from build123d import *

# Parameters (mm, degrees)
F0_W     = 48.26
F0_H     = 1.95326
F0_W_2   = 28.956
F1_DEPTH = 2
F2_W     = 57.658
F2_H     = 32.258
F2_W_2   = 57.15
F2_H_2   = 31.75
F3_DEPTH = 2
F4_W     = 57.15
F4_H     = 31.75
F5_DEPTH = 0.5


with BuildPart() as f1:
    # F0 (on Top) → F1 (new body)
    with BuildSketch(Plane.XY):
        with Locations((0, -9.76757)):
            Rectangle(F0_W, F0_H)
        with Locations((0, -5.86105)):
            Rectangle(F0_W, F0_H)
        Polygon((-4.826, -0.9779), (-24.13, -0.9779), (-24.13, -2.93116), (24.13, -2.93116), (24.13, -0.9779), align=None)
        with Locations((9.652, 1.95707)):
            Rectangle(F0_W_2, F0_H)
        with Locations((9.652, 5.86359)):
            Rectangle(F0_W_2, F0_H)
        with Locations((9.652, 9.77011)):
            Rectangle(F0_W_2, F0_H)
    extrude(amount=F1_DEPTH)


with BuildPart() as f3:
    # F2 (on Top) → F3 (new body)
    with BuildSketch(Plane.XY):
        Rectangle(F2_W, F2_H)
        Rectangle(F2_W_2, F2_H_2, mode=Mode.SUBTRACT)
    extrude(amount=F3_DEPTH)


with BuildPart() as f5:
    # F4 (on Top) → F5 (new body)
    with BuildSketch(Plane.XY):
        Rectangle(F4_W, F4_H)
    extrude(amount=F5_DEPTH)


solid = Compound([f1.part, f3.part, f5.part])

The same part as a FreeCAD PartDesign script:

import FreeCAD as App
import Part
import Sketcher
from FreeCAD import Vector
Q = App.Units.Quantity


def add_polygon(sketch, points):
    """Adds a closed chain of lines whose ends are joined by coincident constraints."""
    first, n = sketch.GeometryCount, len(points)
    for a, b in zip(points, points[1:] + points[:1]):
        sketch.addGeometry(Part.LineSegment(App.Vector(*a, 0), App.Vector(*b, 0)), False)
    for i in range(n):
        sketch.addConstraint(Sketcher.Constraint("Coincident", first + i, 2, first + (i + 1) % n, 1))

doc = App.newDocument("Part")
body = doc.addObject("PartDesign::Body", "Body")
body.AllowCompound = True

sketch1 = body.newObject("Sketcher::SketchObject", "Sketch")
sketch1.AttachmentSupport = (doc.getObject("XY_Plane"), [""])
sketch1.MapMode = "FlatFace"
add_polygon(sketch1, [(-24.1, -8.8), (-24.1, -10.7), (24.1, -10.7), (24.1, -8.8)])
add_polygon(sketch1, [(-24.1, -4.9), (-24.1, -6.8), (24.1, -6.8), (24.1, -4.9)])
add_polygon(sketch1, [(-24.1, -1), (-24.1, -2.9), (24.1, -2.9), (24.1, -1)])
add_polygon(sketch1, [(-4.8, 2.9), (-4.8, 1), (24.1, 1), (24.1, 2.9)])
add_polygon(sketch1, [(-4.8, 6.8), (-4.8, 4.9), (24.1, 4.9), (24.1, 6.8)])
add_polygon(sketch1, [(-4.8, 10.7), (-4.8, 8.8), (24.1, 8.8), (24.1, 10.7)])
sketch1.addConstraint(Sketcher.Constraint("Vertical", 0))
sketch1.addConstraint(Sketcher.Constraint("Horizontal", 1))
sketch1.addConstraint(Sketcher.Constraint("Vertical", 2))
sketch1.addConstraint(Sketcher.Constraint("Horizontal", 3))
sketch1.addConstraint(Sketcher.Constraint("Vertical", 4))
sketch1.addConstraint(Sketcher.Constraint("Horizontal", 5))
sketch1.addConstraint(Sketcher.Constraint("Vertical", 6))
sketch1.addConstraint(Sketcher.Constraint("Horizontal", 7))
sketch1.addConstraint(Sketcher.Constraint("Vertical", 8))
sketch1.addConstraint(Sketcher.Constraint("Horizontal", 9))
sketch1.addConstraint(Sketcher.Constraint("Vertical", 10))
sketch1.addConstraint(Sketcher.Constraint("Horizontal", 11))
sketch1.addConstraint(Sketcher.Constraint("Vertical", 12))
sketch1.addConstraint(Sketcher.Constraint("Horizontal", 13))
sketch1.addConstraint(Sketcher.Constraint("Vertical", 14))
sketch1.addConstraint(Sketcher.Constraint("Horizontal", 15))
sketch1.addConstraint(Sketcher.Constraint("Vertical", 16))
sketch1.addConstraint(Sketcher.Constraint("Horizontal", 17))
sketch1.addConstraint(Sketcher.Constraint("Vertical", 18))
sketch1.addConstraint(Sketcher.Constraint("Horizontal", 19))
sketch1.addConstraint(Sketcher.Constraint("Vertical", 20))
sketch1.addConstraint(Sketcher.Constraint("Horizontal", 21))
sketch1.addConstraint(Sketcher.Constraint("Vertical", 22))
sketch1.addConstraint(Sketcher.Constraint("Horizontal", 23))
sketch1.addConstraint(Sketcher.Constraint("Vertical", 3, 2, 4, 2))
sketch1.addConstraint(Sketcher.Constraint("Vertical", 2, 2, 5, 2))
sketch1.addConstraint(Sketcher.Constraint("Vertical", 7, 2, 8, 2))
sketch1.addConstraint(Sketcher.Constraint("Vertical", 6, 2, 9, 2))
sketch1.addConstraint(Sketcher.Constraint("Vertical", 10, 2, 13, 2))
sketch1.addConstraint(Sketcher.Constraint("Vertical", 15, 2, 16, 2))
sketch1.addConstraint(Sketcher.Constraint("Vertical", 14, 2, 17, 2))
sketch1.addConstraint(Sketcher.Constraint("Vertical", 19, 2, 20, 2))
sketch1.addConstraint(Sketcher.Constraint("Vertical", 18, 2, 21, 2))
sketch1.addConstraint(Sketcher.Constraint("Equal", 2, 4))
sketch1.addConstraint(Sketcher.Constraint("Equal", 6, 8))
sketch1.addConstraint(Sketcher.Constraint("Equal", 10, 12))
sketch1.addConstraint(Sketcher.Constraint("Equal", 14, 16))
sketch1.addConstraint(Sketcher.Constraint("Equal", 18, 20))
sketch1.addConstraint(Sketcher.Constraint("DistanceX", 1, 1, 1, 2, Q("1.9 in")))
sketch1.addConstraint(Sketcher.Constraint("DistanceX", 13, 1, 13, 2, Q("1.14 in")))
sketch1.addConstraint(Sketcher.Constraint("DistanceX", 0, 2, -1, 1, Q("0.95 in")))
sketch1.addConstraint(Sketcher.Constraint("DistanceY", 0, 2, 0, 1, Q("0.0769 in")))
sketch1.addConstraint(Sketcher.Constraint("DistanceY", 0, 2, -1, 1, Q("0.423 in")))
sketch1.addConstraint(Sketcher.Constraint("DistanceY", 8, 2, 12, 2, Q("0.154 in")))
sketch1.addConstraint(Sketcher.Constraint("DistanceY", 4, 2, -1, 1, Q("0.2692 in")))
sketch1.addConstraint(Sketcher.Constraint("DistanceY", 8, 2, -1, 1, Q("0.1154 in")))
sketch1.addConstraint(Sketcher.Constraint("DistanceY", -1, 1, 16, 2, Q("0.1924 in")))
sketch1.addConstraint(Sketcher.Constraint("DistanceY", -1, 1, 20, 2, Q("0.3462 in")))
pad1 = body.newObject("PartDesign::Pad", "Pad")
pad1.Profile = sketch1
pad1.Length = 2
body2 = doc.addObject("PartDesign::Body", "Body001")

sketch2 = body2.newObject("Sketcher::SketchObject", "Sketch001")
sketch2.AttachmentSupport = (doc.getObject("XY_Plane001"), [""])
sketch2.MapMode = "FlatFace"
add_polygon(sketch2, [(-29, 16), (-29, -16), (29, -16), (29, 16)])
add_polygon(sketch2, [(29, -16), (-29, -16), (-29, 16), (29, 16)])
sketch2.addConstraint(Sketcher.Constraint("Vertical", 0))
sketch2.addConstraint(Sketcher.Constraint("Horizontal", 1))
sketch2.addConstraint(Sketcher.Constraint("Vertical", 2))
sketch2.addConstraint(Sketcher.Constraint("Horizontal", 3))
sketch2.addConstraint(Sketcher.Constraint("Horizontal", 4))
sketch2.addConstraint(Sketcher.Constraint("Vertical", 5))
sketch2.addConstraint(Sketcher.Constraint("Horizontal", 6))
sketch2.addConstraint(Sketcher.Constraint("Vertical", 7))
sketch2.addConstraint(Sketcher.Constraint("Symmetric", 0, 2, 2, 2, -1, 1))
sketch2.addConstraint(Sketcher.Constraint("Symmetric", 4, 2, 6, 2, -1, 1))
sketch2.addConstraint(Sketcher.Constraint("DistanceX", 1, 1, 1, 2, Q("2.27 in")))
sketch2.addConstraint(Sketcher.Constraint("DistanceX", 4, 2, 4, 1, Q("2.25 in")))
sketch2.addConstraint(Sketcher.Constraint("DistanceY", 0, 2, 0, 1, Q("1.27 in")))
sketch2.addConstraint(Sketcher.Constraint("DistanceY", 5, 1, 5, 2, Q("1.25 in")))
pad2 = body2.newObject("PartDesign::Pad", "Pad001")
pad2.Profile = sketch2
pad2.Length = 2
body3 = doc.addObject("PartDesign::Body", "Body002")

sketch3 = body3.newObject("Sketcher::SketchObject", "Sketch002")
sketch3.AttachmentSupport = (doc.getObject("XY_Plane002"), [""])
sketch3.MapMode = "FlatFace"
add_polygon(sketch3, [(-29, 16), (-29, -16), (29, -16), (29, 16)])
sketch3.addConstraint(Sketcher.Constraint("Vertical", 0))
sketch3.addConstraint(Sketcher.Constraint("Horizontal", 1))
sketch3.addConstraint(Sketcher.Constraint("Vertical", 2))
sketch3.addConstraint(Sketcher.Constraint("Horizontal", 3))
sketch3.addConstraint(Sketcher.Constraint("Symmetric", 0, 2, 2, 2, -1, 1))
sketch3.addConstraint(Sketcher.Constraint("DistanceX", 1, 1, 1, 2, Q("2.25 in")))
sketch3.addConstraint(Sketcher.Constraint("DistanceY", 0, 2, 0, 1, Q("1.25 in")))
pad3 = body3.newObject("PartDesign::Pad", "Pad002")
pad3.Profile = sketch3
pad3.Length = 0.5

doc.recompute()
